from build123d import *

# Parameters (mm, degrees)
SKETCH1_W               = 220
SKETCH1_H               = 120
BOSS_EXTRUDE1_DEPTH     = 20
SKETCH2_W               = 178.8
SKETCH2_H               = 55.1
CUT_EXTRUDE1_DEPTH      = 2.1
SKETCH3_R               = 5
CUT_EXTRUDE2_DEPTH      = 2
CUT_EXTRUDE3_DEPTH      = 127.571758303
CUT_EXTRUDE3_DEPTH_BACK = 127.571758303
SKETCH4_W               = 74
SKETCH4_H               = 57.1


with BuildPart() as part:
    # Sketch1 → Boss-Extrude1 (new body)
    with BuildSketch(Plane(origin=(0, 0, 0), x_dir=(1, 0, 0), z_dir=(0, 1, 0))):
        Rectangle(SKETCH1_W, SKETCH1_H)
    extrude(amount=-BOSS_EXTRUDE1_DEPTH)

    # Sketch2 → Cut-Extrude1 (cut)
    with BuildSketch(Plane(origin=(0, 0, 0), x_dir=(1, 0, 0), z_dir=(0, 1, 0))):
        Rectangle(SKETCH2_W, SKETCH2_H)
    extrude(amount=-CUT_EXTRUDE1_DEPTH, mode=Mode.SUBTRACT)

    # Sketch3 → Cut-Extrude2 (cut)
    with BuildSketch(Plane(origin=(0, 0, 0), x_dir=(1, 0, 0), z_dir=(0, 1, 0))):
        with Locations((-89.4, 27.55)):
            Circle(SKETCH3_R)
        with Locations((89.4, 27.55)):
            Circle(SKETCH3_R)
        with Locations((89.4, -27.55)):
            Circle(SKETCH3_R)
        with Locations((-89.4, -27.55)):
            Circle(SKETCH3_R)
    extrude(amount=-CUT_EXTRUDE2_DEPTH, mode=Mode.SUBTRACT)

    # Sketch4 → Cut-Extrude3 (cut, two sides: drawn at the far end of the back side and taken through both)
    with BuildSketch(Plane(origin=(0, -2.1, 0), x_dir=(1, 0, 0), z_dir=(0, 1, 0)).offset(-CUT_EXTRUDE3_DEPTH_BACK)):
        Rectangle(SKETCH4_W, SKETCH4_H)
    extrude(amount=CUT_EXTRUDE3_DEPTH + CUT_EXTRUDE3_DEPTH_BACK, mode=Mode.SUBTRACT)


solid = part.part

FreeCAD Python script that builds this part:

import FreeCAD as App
import Part
import Sketcher

V = App.Vector
Q = App.Units.Quantity


def add_polygon(sketch, points):
    """Adds a closed chain of lines whose ends are joined by coincident constraints."""
    first, n = sketch.GeometryCount, len(points)
    for a, b in zip(points, points[1:] + points[:1]):
        sketch.addGeometry(Part.LineSegment(App.Vector(*a, 0), App.Vector(*b, 0)), False)
    for i in range(n):
        sketch.addConstraint(Sketcher.Constraint("Coincident", first + i, 2, first + (i + 1) % n, 1))

doc = App.newDocument("Part")
body = doc.addObject("PartDesign::Body", "Body")

sketch1 = body.newObject("Sketcher::SketchObject", "Sketch")
sketch1.AttachmentSupport = (doc.getObject("XZ_Plane"), [""])
sketch1.MapMode = "FlatFace"
add_polygon(sketch1, [(-110, -60), (-110, 60), (110, 60), (110, -60)])
sketch1.addConstraint(Sketcher.Constraint("Vertical", 0))
sketch1.addConstraint(Sketcher.Constraint("Horizontal", 1))
sketch1.addConstraint(Sketcher.Constraint("Vertical", 2))
sketch1.addConstraint(Sketcher.Constraint("Horizontal", 3))
sketch1.addConstraint(Sketcher.Constraint("Symmetric", 0, 2, 2, 2, -1, 1))
sketch1.addConstraint(Sketcher.Constraint("DistanceX", 1, 1, 1, 2, Q("220 mm")))
sketch1.addConstraint(Sketcher.Constraint("DistanceY", 0, 1, 0, 2, Q("120 mm")))
pad1 = body.newObject("PartDesign::Pad", "Pad")
pad1.Profile = sketch1
pad1.Length = 20

sketch2 = body.newObject("Sketcher::SketchObject", "Sketch001")
sketch2.AttachmentSupport = (doc.getObject("XZ_Plane"), [""])
sketch2.MapMode = "FlatFace"
add_polygon(sketch2, [(-89, -28), (-89, 28), (89, 28), (89, -28)])
sketch2.addConstraint(Sketcher.Constraint("Vertical", 0))
sketch2.addConstraint(Sketcher.Constraint("Horizontal", 1))
sketch2.addConstraint(Sketcher.Constraint("Vertical", 2))
sketch2.addConstraint(Sketcher.Constraint("Horizontal", 3))
sketch2.addConstraint(Sketcher.Constraint("Symmetric", 0, 2, 2, 2, -1, 1))
sketch2.addConstraint(Sketcher.Constraint("DistanceX", 1, 1, 1, 2, Q("178.8 mm")))
sketch2.addConstraint(Sketcher.Constraint("DistanceY", 0, 1, 0, 2, Q("55.1 mm")))
pocket1 = body.newObject("PartDesign::Pocket", "Pocket")
pocket1.Profile = sketch2
pocket1.Length = 2.1
pocket1.Reversed = True

sketch3 = body.newObject("Sketcher::SketchObject", "Sketch002")
sketch3.AttachmentSupport = (doc.getObject("XZ_Plane"), [""])
sketch3.MapMode = "FlatFace"
sketch3.addGeometry(Part.Circle(V(-89, -28, 0), V(0, 0, 1), 5), False)
sketch3.addGeometry(Part.Circle(V(89, -28, 0), V(0, 0, 1), 5), False)
sketch3.addGeometry(Part.Circle(V(89, 28, 0), V(0, 0, 1), 5), False)
sketch3.addGeometry(Part.Circle(V(-89, 28, 0), V(0, 0, 1), 5), False)
sketch3.addConstraint(Sketcher.Constraint("Equal", 0, 1))
sketch3.addConstraint(Sketcher.Constraint("Equal", 1, 2))
sketch3.addConstraint(Sketcher.Constraint("Equal", 2, 3))
sketch3.addConstraint(Sketcher.Constraint("Symmetric", 0, 3, 2, 3, -1, 1))
sketch3.addConstraint(Sketcher.Constraint("Symmetric", 1, 3, 3, 3, -1, 1))
sketch3.addConstraint(Sketcher.Constraint("Symmetric", 0, 3, 1, 3, -2))
sketch3.addConstraint(Sketcher.Constraint("Diameter", 0, Q("10 mm")))
sketch3.addConstraint(Sketcher.Constraint("DistanceX", 0, 3, -1, 1, Q("89.4 mm")))
sketch3.addConstraint(Sketcher.Constraint("DistanceY", 1, 3, 2, 3, Q("55.1 mm")))
pocket2 = body.newObject("PartDesign::Pocket", "Pocket001")
pocket2.Profile = sketch3
pocket2.Length = 2
pocket2.Reversed = True

sketch4 = body.newObject("Sketcher::SketchObject", "Sketch003")
sketch4.AttachmentSupport = (doc.getObject("XZ_Plane"), [""])
sketch4.MapMode = "FlatFace"
sketch4.AttachmentOffset = App.Placement(V(0, 0, 2.1), App.Rotation())
add_polygon(sketch4, [(-37, -29), (-37, 29), (37, 29), (37, -29)])
sketch4.addConstraint(Sketcher.Constraint("Vertical", 0))
sketch4.addConstraint(Sketcher.Constraint("Horizontal", 1))
sketch4.addConstraint(Sketcher.Constraint("Vertical", 2))
sketch4.addConstraint(Sketcher.Constraint("Horizontal", 3))
sketch4.addConstraint(Sketcher.Constraint("Symmetric", 0, 2, 2, 2, -1, 1))
sketch4.addConstraint(Sketcher.Constraint("DistanceX", 1, 1, 1, 2, Q("74 mm")))
sketch4.addConstraint(Sketcher.Constraint("DistanceY", 0, 1, 0, 2, Q("57.1 mm")))
pocket3 = body.newObject("PartDesign::Pocket", "Pocket002")
pocket3.Profile = sketch4
pocket3.Type = "ThroughAll"
pocket3.Midplane = True

doc.recompute()
